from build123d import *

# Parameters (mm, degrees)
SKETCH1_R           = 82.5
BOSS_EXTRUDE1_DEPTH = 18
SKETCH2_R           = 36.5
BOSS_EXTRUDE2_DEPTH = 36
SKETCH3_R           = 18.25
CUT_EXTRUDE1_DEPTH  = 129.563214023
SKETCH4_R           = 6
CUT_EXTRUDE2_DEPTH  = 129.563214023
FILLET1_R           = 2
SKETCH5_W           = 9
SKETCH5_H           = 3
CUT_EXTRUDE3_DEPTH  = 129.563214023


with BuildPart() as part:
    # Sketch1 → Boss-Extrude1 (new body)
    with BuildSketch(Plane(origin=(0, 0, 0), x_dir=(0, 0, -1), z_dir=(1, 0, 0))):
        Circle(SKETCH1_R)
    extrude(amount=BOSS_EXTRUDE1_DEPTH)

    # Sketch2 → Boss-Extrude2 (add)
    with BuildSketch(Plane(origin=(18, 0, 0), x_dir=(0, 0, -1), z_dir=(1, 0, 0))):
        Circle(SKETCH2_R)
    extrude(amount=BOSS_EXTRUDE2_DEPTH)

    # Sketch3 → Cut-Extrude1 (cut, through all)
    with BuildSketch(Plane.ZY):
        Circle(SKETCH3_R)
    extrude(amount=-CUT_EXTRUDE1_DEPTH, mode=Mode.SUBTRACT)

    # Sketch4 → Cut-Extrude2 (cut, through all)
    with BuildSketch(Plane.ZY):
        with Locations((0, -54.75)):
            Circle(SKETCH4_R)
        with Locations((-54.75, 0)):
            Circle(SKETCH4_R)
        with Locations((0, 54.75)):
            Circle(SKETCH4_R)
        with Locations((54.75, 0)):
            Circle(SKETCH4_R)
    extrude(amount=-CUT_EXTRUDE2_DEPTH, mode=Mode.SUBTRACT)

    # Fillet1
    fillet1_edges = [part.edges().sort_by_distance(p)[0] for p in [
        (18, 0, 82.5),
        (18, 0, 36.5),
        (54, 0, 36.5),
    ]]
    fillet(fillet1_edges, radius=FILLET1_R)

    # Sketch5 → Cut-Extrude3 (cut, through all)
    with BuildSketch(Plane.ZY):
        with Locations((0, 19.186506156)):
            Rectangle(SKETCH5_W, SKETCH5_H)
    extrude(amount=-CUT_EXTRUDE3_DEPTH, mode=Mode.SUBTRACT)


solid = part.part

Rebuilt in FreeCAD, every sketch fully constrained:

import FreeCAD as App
import Part
import Sketcher
Q = App.Units.Quantity


def edges_at(feature, points):
    """Names of the edges that pass closest to the given points."""
    edges = feature.Shape.Edges
    near = lambda p: min(range(len(edges)), key=lambda i: edges[i].distToShape(Part.Vertex(*p))[0])
    return sorted({f"Edge{near(p) + 1}" for p in points})

doc = App.newDocument("Part")
params = doc.addObject("Spreadsheet::Sheet", "Params")
for row, (alias, value) in enumerate([
    ("sketch1_diameter", "165 mm"),
    ("pad1_length", "18 mm"),
    ("sketch2_diameter", "73 mm"),
    ("pad2_length", "36 mm"),
    ("sketch3_diameter", "36.5 mm"),
    ("sketch4_diameter", "12 mm"),
    ("fillet_radius", "2 mm"),
    ("sketch5_width", "3 mm"),
    ("sketch5_height", "9 mm"),
], start=1):
    params.set(f"A{row}", alias)
    params.set(f"B{row}", "=" + value)
    params.setAlias(f"B{row}", alias)

body = doc.addObject("PartDesign::Body", "Body")

# Sketch on YZ plane
sketch1 = doc.addObject("Sketcher::SketchObject", "Sketch")
body.addObject(sketch1)
sketch1.AttachmentSupport = (doc.YZ_Plane, [""])
sketch1.MapMode = "FlatFace"
sketch1.addGeometry(Part.Circle(App.Vector(0, 0, 0), App.Vector(0, 0, 1), 82), False)
sketch1.addConstraint([
    Sketcher.Constraint("Coincident", 0, 3, -1, 1),
    Sketcher.Constraint("Diameter", 0, Q("165 mm")),
])
sketch1.setExpression("Constraints[1]", "Params.sketch1_diameter")
pad1 = doc.addObject("PartDesign::Pad", "Pad")
body.addObject(pad1)
pad1.Profile = sketch1
pad1.setExpression("Length", "Params.pad1_length")

# Sketch on YZ plane
sketch2 = doc.addObject("Sketcher::SketchObject", "Sketch001")
body.addObject(sketch2)
sketch2.AttachmentSupport = (doc.YZ_Plane, [""])
sketch2.MapMode = "FlatFace"
sketch2.AttachmentOffset = App.Placement(App.Vector(0, 0, 18), App.Rotation())
sketch2.addGeometry(Part.Circle(App.Vector(0, 0, 0), App.Vector(0, 0, 1), 36), False)
sketch2.addConstraint([
    Sketcher.Constraint("Coincident", 0, 3, -1, 1),
    Sketcher.Constraint("Diameter", 0, Q("73 mm")),
])
sketch2.setExpression("Constraints[1]", "Params.sketch2_diameter")
pad2 = doc.addObject("PartDesign::Pad", "Pad001")
body.addObject(pad2)
pad2.Profile = sketch2
pad2.setExpression("Length", "Params.pad2_length")

# Sketch on YZ plane
sketch3 = doc.addObject("Sketcher::SketchObject", "Sketch002")
body.addObject(sketch3)
sketch3.AttachmentSupport = (doc.YZ_Plane, [""])
sketch3.MapMode = "FlatFace"
sketch3.addGeometry(Part.Circle(App.Vector(0, 0, 0), App.Vector(0, 0, 1), 18), False)
sketch3.addConstraint([
    Sketcher.Constraint("Coincident", 0, 3, -1, 1),
    Sketcher.Constraint("Diameter", 0, Q("36.5 mm")),
])
sketch3.setExpression("Constraints[1]", "Params.sketch3_diameter")
pocket1 = doc.addObject("PartDesign::Pocket", "Pocket")
body.addObject(pocket1)
pocket1.Profile = sketch3
pocket1.Type = "ThroughAll"
pocket1.Reversed = True

# Sketch on YZ plane
sketch4 = doc.addObject("Sketcher::SketchObject", "Sketch003")
body.addObject(sketch4)
sketch4.AttachmentSupport = (doc.YZ_Plane, [""])
sketch4.MapMode = "FlatFace"
sketch4.addGeometry([
    Part.Circle(App.Vector(-55, 0, 0), App.Vector(0, 0, 1), 6),
    Part.Circle(App.Vector(0, -55, 0), App.Vector(0, 0, 1), 6),
    Part.Circle(App.Vector(55, 0, 0), App.Vector(0, 0, 1), 6),
    Part.Circle(App.Vector(0, 55, 0), App.Vector(0, 0, 1), 6),
], False)
sketch4.addConstraint([
    Sketcher.Constraint("Equal", 0, 1),
    Sketcher.Constraint("Equal", 1, 2),
    Sketcher.Constraint("Equal", 2, 3),
    Sketcher.Constraint("Symmetric", 0, 3, 2, 3, -1, 1),
    Sketcher.Constraint("Symmetric", 1, 3, 3, 3, -1, 1),
    Sketcher.Constraint("PointOnObject", 0, 3, -1),
    Sketcher.Constraint("PointOnObject", 1, 3, -2),
    Sketcher.Constraint("Diameter", 0, Q("12 mm")),
    Sketcher.Constraint("DistanceX", 0, 3, 2, 3, Q("109.5 mm")),
    Sketcher.Constraint("DistanceY", 1, 3, 3, 3, Q("109.5 mm")),
])
sketch4.setExpression("Constraints[7]", "Params.sketch4_diameter")
pocket2 = doc.addObject("PartDesign::Pocket", "Pocket001")
body.addObject(pocket2)
pocket2.Profile = sketch4
pocket2.Type = "ThroughAll"
pocket2.Reversed = True
doc.recompute()

fillet = doc.addObject("PartDesign::Fillet", "Fillet")
body.addObject(fillet)
fillet.Base = (pocket2, edges_at(pocket2, [(18, 0, 82.5), (18, 0, 36.5), (54, 0, 36.5)]))
fillet.setExpression("Radius", "Params.fillet_radius")

# Sketch on YZ plane
sketch5 = doc.addObject("Sketcher::SketchObject", "Sketch004")
body.addObject(sketch5)
sketch5.AttachmentSupport = (doc.YZ_Plane, [""])
sketch5.MapMode = "FlatFace"
sketch5.addGeometry([
    Part.LineSegment(App.Vector(20.7, -4.5, 0), App.Vector(17.7, -4.5, 0)),
    Part.LineSegment(App.Vector(17.7, -4.5, 0), App.Vector(17.7, 4.5, 0)),
    Part.LineSegment(App.Vector(17.7, 4.5, 0), App.Vector(20.7, 4.5, 0)),
    Part.LineSegment(App.Vector(20.7, 4.5, 0), App.Vector(20.7, -4.5, 0)),
], False)
sketch5.addConstraint([
    Sketcher.Constraint("Coincident", 0, 2, 1, 1),
    Sketcher.Constraint("Coincident", 1, 2, 2, 1),
    Sketcher.Constraint("Coincident", 2, 2, 3, 1),
    Sketcher.Constraint("Coincident", 3, 2, 0, 1),
    Sketcher.Constraint("Horizontal", 0),
    Sketcher.Constraint("Vertical", 1),
    Sketcher.Constraint("Horizontal", 2),
    Sketcher.Constraint("Vertical", 3),
    Sketcher.Constraint("DistanceX", 0, 2, 0, 1, Q("3 mm")),
    Sketcher.Constraint("DistanceY", 1, 1, 1, 2, Q("9 mm")),
    Sketcher.Constraint("DistanceY", 0, 2, -1, 1, Q("4.5 mm")),
    Sketcher.Constraint("DistanceX", -1, 1, 0, 2, Q("17.686506 mm")),
])
sketch5.setExpression("Constraints[8]", "Params.sketch5_width")
sketch5.setExpression("Constraints[9]", "Params.sketch5_height")
pocket3 = doc.addObject("PartDesign::Pocket", "Pocket002")
body.addObject(pocket3)
pocket3.Profile = sketch5
pocket3.Type = "ThroughAll"
pocket3.Reversed = True

doc.recompute()
